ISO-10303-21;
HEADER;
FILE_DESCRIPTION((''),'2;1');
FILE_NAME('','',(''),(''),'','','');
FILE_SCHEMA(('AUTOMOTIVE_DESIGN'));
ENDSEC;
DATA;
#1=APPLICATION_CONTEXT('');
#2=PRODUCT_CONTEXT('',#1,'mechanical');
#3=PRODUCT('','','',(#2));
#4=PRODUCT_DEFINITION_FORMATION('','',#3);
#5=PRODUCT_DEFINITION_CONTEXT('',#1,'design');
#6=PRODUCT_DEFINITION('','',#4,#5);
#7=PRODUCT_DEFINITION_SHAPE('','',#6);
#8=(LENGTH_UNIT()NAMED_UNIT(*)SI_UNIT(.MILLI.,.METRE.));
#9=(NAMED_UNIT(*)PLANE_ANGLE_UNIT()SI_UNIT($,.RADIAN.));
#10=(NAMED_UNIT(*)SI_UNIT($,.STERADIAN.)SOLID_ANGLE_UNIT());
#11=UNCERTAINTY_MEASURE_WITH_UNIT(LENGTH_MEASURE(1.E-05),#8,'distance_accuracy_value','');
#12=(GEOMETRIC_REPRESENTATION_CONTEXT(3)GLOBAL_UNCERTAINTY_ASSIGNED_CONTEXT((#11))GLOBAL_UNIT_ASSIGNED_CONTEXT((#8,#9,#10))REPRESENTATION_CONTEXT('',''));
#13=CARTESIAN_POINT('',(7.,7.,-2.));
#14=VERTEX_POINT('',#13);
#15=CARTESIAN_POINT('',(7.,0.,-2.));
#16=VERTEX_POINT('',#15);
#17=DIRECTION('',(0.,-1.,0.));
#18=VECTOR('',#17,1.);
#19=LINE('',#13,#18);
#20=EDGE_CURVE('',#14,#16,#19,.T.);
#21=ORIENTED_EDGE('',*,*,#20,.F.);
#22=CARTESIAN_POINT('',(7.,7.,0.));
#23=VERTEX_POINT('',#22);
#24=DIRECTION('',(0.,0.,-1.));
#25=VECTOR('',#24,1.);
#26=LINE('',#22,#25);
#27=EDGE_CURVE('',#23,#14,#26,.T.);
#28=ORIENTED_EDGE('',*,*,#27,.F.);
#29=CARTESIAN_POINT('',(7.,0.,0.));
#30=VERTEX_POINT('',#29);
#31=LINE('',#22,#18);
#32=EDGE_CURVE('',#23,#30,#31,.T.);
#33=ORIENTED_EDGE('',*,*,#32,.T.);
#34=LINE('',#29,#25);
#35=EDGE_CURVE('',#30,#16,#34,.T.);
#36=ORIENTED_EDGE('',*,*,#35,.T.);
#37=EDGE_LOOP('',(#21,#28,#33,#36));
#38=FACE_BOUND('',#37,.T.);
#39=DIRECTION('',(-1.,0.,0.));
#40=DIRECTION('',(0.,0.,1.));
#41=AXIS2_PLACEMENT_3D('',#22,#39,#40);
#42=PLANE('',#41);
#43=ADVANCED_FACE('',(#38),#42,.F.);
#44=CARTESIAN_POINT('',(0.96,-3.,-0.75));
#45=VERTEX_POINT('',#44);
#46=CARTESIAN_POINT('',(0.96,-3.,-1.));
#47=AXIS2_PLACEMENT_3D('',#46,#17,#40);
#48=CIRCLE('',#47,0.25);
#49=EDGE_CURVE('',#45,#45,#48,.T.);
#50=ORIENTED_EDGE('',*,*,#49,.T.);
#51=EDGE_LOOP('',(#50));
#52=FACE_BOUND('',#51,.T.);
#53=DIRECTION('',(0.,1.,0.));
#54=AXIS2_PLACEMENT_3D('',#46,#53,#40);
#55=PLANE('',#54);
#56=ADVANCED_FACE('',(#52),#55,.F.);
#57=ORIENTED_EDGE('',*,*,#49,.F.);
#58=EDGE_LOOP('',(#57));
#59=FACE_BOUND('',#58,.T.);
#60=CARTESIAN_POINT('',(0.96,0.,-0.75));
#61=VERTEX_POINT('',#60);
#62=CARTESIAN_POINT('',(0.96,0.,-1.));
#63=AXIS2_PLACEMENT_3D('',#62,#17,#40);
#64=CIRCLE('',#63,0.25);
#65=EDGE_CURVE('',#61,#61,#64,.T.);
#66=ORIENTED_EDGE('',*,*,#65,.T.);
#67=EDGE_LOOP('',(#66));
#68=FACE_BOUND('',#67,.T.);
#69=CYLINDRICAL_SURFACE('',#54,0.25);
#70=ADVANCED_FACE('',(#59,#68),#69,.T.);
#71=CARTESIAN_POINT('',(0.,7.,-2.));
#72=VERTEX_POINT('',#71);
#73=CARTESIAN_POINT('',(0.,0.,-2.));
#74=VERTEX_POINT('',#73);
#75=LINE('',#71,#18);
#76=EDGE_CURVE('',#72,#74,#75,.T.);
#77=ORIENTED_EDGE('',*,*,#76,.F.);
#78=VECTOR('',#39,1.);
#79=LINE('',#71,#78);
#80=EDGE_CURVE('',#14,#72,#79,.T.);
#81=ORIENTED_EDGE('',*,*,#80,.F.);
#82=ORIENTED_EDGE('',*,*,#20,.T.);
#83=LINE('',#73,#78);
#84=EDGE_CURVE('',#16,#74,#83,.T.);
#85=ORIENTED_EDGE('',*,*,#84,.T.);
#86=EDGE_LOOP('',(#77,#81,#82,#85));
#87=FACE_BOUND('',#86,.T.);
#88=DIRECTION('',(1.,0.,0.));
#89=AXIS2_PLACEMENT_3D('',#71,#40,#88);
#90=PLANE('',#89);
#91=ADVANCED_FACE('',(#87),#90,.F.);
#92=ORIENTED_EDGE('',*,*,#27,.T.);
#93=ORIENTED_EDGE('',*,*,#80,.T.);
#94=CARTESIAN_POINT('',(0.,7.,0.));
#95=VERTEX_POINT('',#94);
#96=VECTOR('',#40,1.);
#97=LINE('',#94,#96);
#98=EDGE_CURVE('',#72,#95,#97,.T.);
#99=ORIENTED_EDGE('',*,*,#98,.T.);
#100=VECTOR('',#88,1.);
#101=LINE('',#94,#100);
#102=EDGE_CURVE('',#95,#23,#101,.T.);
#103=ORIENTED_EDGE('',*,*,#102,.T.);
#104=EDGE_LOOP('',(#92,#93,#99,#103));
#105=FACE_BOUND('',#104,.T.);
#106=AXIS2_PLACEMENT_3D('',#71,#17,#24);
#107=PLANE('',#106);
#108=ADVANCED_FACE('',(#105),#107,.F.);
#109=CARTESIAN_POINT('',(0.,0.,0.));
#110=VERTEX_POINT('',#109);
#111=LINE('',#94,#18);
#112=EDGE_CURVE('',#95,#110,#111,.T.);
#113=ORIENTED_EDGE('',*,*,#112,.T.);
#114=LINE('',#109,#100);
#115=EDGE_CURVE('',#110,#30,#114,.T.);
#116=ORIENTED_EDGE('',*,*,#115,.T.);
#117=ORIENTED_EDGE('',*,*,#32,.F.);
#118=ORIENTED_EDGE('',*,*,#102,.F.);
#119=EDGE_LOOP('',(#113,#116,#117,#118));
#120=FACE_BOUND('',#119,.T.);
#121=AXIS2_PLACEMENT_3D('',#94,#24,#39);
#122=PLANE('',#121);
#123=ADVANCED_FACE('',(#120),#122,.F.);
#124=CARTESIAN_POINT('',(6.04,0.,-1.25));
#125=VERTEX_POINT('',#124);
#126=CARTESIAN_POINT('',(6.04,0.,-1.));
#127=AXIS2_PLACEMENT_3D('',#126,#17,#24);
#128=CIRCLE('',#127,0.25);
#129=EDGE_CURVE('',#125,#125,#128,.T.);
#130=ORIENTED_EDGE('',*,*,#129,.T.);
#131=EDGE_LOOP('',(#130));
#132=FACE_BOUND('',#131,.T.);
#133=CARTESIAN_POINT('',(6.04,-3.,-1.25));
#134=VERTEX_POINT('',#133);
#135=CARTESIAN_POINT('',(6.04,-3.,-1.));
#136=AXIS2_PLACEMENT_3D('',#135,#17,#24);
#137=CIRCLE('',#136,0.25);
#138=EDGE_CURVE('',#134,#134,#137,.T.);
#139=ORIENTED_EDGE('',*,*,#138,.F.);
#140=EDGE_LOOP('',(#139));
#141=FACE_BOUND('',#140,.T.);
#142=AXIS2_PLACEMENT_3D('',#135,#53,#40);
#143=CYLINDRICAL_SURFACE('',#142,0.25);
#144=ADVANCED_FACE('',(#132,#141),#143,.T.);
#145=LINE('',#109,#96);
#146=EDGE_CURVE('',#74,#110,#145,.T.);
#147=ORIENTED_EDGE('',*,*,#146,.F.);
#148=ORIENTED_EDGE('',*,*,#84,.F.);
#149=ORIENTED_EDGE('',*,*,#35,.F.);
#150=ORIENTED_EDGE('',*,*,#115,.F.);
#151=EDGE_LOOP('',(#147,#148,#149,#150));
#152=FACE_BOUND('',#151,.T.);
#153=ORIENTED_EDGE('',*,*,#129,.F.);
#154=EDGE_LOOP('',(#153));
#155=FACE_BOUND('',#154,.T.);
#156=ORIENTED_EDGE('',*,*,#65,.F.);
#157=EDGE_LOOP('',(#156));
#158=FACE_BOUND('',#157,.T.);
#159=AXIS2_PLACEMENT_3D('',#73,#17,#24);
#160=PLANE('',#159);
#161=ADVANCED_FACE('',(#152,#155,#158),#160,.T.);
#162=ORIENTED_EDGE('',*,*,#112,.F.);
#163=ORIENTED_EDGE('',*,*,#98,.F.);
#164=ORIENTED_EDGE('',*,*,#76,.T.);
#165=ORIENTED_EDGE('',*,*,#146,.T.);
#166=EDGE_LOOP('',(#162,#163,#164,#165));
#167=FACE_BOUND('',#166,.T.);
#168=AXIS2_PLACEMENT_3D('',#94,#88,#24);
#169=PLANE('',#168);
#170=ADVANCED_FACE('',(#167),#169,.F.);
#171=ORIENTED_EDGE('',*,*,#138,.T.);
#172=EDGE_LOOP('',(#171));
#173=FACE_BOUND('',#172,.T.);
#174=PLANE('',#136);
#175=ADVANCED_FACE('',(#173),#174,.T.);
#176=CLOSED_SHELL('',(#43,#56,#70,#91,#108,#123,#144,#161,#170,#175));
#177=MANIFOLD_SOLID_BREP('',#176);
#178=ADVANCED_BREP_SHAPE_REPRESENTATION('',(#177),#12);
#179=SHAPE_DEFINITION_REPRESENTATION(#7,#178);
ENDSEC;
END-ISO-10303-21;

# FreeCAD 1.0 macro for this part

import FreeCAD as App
import Part
import Sketcher

doc = App.newDocument("Part")
body = doc.addObject("PartDesign::Body", "Body")

sketch1 = body.newObject("Sketcher::SketchObject", "Sketch")
sketch1.AttachmentSupport = (doc.getObject("XZ_Plane"), [""])
sketch1.MapMode = "FlatFace"
sketch1.addGeometry(Part.LineSegment(App.Vector(0, -2, 0), App.Vector(0, 0, 0)), False)
sketch1.addGeometry(Part.LineSegment(App.Vector(0, 0, 0), App.Vector(7, 0, 0)), False)
sketch1.addGeometry(Part.LineSegment(App.Vector(7, 0, 0), App.Vector(7, -2, 0)), False)
sketch1.addGeometry(Part.LineSegment(App.Vector(7, -2, 0), App.Vector(0, -2, 0)), False)
sketch1.addConstraint(Sketcher.Constraint("Coincident", 0, 2, 1, 1))
sketch1.addConstraint(Sketcher.Constraint("Coincident", 1, 2, 2, 1))
sketch1.addConstraint(Sketcher.Constraint("Coincident", 2, 2, 3, 1))
sketch1.addConstraint(Sketcher.Constraint("Coincident", 3, 2, 0, 1))
sketch1.addConstraint(Sketcher.Constraint("Vertical", 0))
sketch1.addConstraint(Sketcher.Constraint("Horizontal", 1))
sketch1.addConstraint(Sketcher.Constraint("Vertical", 2))
sketch1.addConstraint(Sketcher.Constraint("Horizontal", 3))
sketch1.addConstraint(Sketcher.Constraint("Coincident", 0, 2, -1, 1))
sketch1.addConstraint(Sketcher.Constraint("DistanceX", 1, 1, 1, 2, 7.0))
sketch1.addConstraint(Sketcher.Constraint("DistanceY", 0, 1, 0, 2, 2.0))
pad1 = body.newObject("PartDesign::Pad", "Pad")
pad1.Profile = sketch1
pad1.Length = 7
pad1.Reversed = True

sketch2 = body.newObject("Sketcher::SketchObject", "Sketch001")
sketch2.AttachmentSupport = (doc.getObject("XZ_Plane"), [""])
sketch2.MapMode = "FlatFace"
sketch2.addGeometry(Part.Circle(App.Vector(0.96, -1, 0), App.Vector(0, 0, 1), 0.25), False)
sketch2.addGeometry(Part.Circle(App.Vector(6.04, -1, 0), App.Vector(0, 0, 1), 0.25), False)
sketch2.addConstraint(Sketcher.Constraint("Equal", 0, 1))
sketch2.addConstraint(Sketcher.Constraint("Horizontal", 0, 3, 1, 3))
sketch2.addConstraint(Sketcher.Constraint("Diameter", 0, 0.5))
sketch2.addConstraint(Sketcher.Constraint("DistanceY", 0, 3, -1, 1, 1.0))
sketch2.addConstraint(Sketcher.Constraint("DistanceX", -1, 1, 0, 3, 0.96))
sketch2.addConstraint(Sketcher.Constraint("DistanceX", -1, 1, 1, 3, 6.04))
pad2 = body.newObject("PartDesign::Pad", "Pad001")
pad2.Profile = sketch2
pad2.Length = 3

doc.recompute()
